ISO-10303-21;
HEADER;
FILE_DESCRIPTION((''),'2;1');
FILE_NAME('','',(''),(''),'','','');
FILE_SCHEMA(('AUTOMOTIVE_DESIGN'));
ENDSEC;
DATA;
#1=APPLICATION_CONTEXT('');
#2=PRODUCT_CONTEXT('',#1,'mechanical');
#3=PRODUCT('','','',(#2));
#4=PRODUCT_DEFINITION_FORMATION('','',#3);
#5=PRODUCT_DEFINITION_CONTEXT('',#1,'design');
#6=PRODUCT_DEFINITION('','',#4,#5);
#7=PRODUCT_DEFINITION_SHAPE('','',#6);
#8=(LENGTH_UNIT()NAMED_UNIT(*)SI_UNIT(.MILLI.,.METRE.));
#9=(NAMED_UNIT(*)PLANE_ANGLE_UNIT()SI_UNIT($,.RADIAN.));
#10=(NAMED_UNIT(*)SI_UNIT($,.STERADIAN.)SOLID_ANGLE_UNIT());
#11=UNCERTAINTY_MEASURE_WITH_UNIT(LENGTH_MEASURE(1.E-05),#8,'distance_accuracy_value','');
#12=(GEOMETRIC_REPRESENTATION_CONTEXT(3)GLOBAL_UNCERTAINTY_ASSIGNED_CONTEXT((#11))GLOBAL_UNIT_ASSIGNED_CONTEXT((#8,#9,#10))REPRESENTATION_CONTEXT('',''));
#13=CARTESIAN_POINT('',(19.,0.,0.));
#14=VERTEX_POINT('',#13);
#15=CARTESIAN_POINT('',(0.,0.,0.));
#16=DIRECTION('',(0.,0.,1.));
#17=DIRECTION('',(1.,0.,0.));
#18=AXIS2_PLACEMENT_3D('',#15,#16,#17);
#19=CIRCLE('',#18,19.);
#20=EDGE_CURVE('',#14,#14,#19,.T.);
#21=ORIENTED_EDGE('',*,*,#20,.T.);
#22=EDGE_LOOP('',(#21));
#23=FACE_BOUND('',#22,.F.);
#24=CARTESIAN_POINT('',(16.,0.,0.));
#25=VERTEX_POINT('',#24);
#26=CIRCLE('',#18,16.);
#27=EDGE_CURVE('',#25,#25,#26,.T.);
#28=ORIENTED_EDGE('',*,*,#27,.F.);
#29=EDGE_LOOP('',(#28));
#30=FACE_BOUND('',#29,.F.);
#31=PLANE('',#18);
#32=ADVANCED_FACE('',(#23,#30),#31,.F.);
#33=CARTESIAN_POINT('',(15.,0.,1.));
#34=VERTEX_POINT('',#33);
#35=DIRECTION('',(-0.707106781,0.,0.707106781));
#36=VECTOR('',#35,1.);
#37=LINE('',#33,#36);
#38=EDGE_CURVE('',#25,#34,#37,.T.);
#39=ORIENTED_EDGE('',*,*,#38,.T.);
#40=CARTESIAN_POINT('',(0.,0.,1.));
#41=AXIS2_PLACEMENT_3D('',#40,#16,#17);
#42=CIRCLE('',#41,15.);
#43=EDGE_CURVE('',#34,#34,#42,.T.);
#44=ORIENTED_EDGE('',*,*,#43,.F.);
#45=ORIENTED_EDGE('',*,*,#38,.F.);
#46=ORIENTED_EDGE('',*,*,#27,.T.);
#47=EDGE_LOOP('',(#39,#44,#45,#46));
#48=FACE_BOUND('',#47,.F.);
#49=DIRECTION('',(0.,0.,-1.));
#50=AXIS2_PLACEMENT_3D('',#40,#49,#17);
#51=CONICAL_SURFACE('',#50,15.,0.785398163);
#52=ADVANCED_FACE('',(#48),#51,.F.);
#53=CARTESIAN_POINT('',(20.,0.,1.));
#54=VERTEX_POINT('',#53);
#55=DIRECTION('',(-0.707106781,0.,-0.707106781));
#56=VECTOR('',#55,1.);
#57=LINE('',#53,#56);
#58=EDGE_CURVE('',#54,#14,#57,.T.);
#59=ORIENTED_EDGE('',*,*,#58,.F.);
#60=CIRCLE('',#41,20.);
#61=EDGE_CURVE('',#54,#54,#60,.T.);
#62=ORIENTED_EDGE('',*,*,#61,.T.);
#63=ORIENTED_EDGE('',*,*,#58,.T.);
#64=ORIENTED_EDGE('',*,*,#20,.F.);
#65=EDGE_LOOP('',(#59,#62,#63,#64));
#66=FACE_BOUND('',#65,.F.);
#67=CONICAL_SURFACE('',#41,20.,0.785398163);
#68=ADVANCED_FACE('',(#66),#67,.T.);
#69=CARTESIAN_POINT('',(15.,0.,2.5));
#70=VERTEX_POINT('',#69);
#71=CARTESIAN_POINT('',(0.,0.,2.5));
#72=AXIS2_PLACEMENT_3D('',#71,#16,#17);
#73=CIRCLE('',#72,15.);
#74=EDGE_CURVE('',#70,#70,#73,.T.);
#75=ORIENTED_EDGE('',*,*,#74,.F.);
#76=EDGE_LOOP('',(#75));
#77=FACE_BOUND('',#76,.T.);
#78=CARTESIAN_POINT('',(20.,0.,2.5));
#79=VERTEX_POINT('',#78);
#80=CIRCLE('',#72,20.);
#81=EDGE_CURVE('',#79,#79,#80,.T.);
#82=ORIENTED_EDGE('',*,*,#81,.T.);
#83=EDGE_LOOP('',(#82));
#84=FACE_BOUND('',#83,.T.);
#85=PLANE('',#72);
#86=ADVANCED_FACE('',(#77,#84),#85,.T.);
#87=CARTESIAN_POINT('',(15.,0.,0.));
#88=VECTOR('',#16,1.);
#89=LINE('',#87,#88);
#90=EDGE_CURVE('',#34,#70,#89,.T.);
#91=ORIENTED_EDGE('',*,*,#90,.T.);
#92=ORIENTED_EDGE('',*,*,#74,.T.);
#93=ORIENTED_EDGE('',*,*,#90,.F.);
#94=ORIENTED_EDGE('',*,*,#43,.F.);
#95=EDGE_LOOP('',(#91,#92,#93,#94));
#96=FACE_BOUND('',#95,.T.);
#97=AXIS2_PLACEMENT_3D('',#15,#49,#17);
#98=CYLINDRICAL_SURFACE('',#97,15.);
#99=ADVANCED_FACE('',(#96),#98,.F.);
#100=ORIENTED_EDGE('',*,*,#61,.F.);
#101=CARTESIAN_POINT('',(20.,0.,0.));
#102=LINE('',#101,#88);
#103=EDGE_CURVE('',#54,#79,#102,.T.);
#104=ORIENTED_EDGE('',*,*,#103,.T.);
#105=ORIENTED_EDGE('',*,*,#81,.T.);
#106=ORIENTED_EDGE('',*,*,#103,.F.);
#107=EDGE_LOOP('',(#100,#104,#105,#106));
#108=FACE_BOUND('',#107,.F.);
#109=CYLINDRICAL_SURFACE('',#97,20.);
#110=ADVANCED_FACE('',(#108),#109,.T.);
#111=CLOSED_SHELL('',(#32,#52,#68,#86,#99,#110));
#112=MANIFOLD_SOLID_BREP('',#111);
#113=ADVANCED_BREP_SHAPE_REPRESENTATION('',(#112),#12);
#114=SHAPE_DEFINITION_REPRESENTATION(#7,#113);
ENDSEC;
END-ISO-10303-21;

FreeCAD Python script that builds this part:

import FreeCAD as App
import Part
import Sketcher
from FreeCAD import Vector


def edges_at(feature, points):
    """Names of the edges that pass closest to the given points."""
    edges = feature.Shape.Edges
    near = lambda p: min(range(len(edges)), key=lambda i: edges[i].distToShape(Part.Vertex(*p))[0])
    return sorted({f"Edge{near(p) + 1}" for p in points})

doc = App.newDocument("Part")
body = doc.addObject("PartDesign::Body", "Body")

sketch1 = body.newObject("Sketcher::SketchObject", "Sketch")
sketch1.AttachmentSupport = (doc.getObject("XY_Plane"), [""])
sketch1.MapMode = "FlatFace"
sketch1.addGeometry([
    Part.Circle(Vector(0, 0, 0), Vector(0, 0, 1), 20),
    Part.Circle(Vector(0, 0, 0), Vector(0, 0, 1), 15),
], False)
sketch1.addConstraint([
    Sketcher.Constraint("Coincident", 0, 3, -1, 1),
    Sketcher.Constraint("Coincident", 1, 3, -1, 1),
    Sketcher.Constraint("Diameter", 0, 40.0),
    Sketcher.Constraint("Diameter", 1, 30.0),
])
pad1 = body.newObject("PartDesign::Pad", "Pad")
pad1.Profile = sketch1
pad1.Length = 2.5
doc.recompute()

chamfer = body.newObject("PartDesign::Chamfer", "Chamfer")
chamfer.Base = (pad1, edges_at(pad1, [(-18.646, -7.232, 0)]))
chamfer.Size = 1
doc.recompute()

chamfer2 = body.newObject("PartDesign::Chamfer", "Chamfer001")
chamfer2.Base = (chamfer, edges_at(chamfer, [(-13.985, 5.424, 0)]))
chamfer2.Size = 1

doc.recompute()
